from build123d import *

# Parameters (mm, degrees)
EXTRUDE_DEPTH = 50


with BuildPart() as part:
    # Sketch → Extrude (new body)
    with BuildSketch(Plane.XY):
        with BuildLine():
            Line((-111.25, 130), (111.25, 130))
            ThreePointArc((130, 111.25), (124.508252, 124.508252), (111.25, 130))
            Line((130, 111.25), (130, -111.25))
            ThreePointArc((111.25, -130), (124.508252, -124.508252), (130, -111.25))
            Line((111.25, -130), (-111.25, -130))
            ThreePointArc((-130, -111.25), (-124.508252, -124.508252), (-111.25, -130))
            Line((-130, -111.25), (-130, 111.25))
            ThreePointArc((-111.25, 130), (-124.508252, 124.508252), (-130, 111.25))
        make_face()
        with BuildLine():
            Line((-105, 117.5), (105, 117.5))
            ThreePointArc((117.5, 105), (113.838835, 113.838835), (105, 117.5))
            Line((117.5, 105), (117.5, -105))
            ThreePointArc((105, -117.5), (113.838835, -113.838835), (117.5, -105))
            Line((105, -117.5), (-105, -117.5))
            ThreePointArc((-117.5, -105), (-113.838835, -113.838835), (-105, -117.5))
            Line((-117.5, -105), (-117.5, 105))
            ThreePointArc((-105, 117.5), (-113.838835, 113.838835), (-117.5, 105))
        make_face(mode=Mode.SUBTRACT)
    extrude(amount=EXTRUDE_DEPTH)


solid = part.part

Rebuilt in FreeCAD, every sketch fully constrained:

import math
import FreeCAD as App
import Part
import Sketcher

V = App.Vector

doc = App.newDocument("Part")
body = doc.addObject("PartDesign::Body", "Body")

# Sketch on XY plane
sketch1 = body.newObject("Sketcher::SketchObject", "Sketch")
sketch1.AttachmentSupport = (doc.getObject("XY_Plane"), [""])
sketch1.MapMode = "FlatFace"
sketch1.addGeometry([
    Part.LineSegment(V(111, 130, 0), V(-111, 130, 0)),  # 0
    Part.ArcOfCircle(Part.Circle(V(-111, 111, 0), V(0, 0, 1), 19), math.radians(90), math.radians(180)),  # 1
    Part.LineSegment(V(-130, 111, 0), V(-130, -111, 0)),  # 2
    Part.ArcOfCircle(Part.Circle(V(-111, -111, 0), V(0, 0, 1), 19), math.radians(-180), math.radians(-90)),  # 3
    Part.LineSegment(V(-111, -130, 0), V(111, -130, 0)),  # 4
    Part.ArcOfCircle(Part.Circle(V(111, -111, 0), V(0, 0, 1), 19), math.radians(-90), math.radians(0)),  # 5
    Part.LineSegment(V(130, -111, 0), V(130, 111, 0)),  # 6
    Part.ArcOfCircle(Part.Circle(V(111, 111, 0), V(0, 0, 1), 19), math.radians(0), math.radians(90)),  # 7
    Part.LineSegment(V(-105, 118, 0), V(105, 118, 0)),  # 8
    Part.ArcOfCircle(Part.Circle(V(105, 105, 0), V(0, 0, 1), 12), math.radians(0), math.radians(90)),  # 9
    Part.LineSegment(V(118, 105, 0), V(118, -105, 0)),  # 10
    Part.ArcOfCircle(Part.Circle(V(105, -105, 0), V(0, 0, 1), 12), math.radians(-90), math.radians(0)),  # 11
    Part.LineSegment(V(105, -118, 0), V(-105, -118, 0)),  # 12
    Part.ArcOfCircle(Part.Circle(V(-105, -105, 0), V(0, 0, 1), 12), math.radians(180), math.radians(270)),  # 13
    Part.LineSegment(V(-118, -105, 0), V(-118, 105, 0)),  # 14
    Part.ArcOfCircle(Part.Circle(V(-105, 105, 0), V(0, 0, 1), 12), math.radians(90), math.radians(180)),  # 15
], False)
sketch1.addConstraint([
    Sketcher.Constraint("Tangent", 0, 2, 1, 1),
    Sketcher.Constraint("Tangent", 1, 2, 2, 1),
    Sketcher.Constraint("Tangent", 2, 2, 3, 1),
    Sketcher.Constraint("Tangent", 3, 2, 4, 1),
    Sketcher.Constraint("Tangent", 4, 2, 5, 1),
    Sketcher.Constraint("Tangent", 5, 2, 6, 1),
    Sketcher.Constraint("Tangent", 6, 2, 7, 1),
    Sketcher.Constraint("Tangent", 7, 2, 0, 1),
    Sketcher.Constraint("Tangent", 8, 2, 9, 2),
    Sketcher.Constraint("Tangent", 9, 1, 10, 1),
    Sketcher.Constraint("Tangent", 10, 2, 11, 2),
    Sketcher.Constraint("Tangent", 11, 1, 12, 1),
    Sketcher.Constraint("Tangent", 12, 2, 13, 2),
    Sketcher.Constraint("Tangent", 13, 1, 14, 1),
    Sketcher.Constraint("Tangent", 14, 2, 15, 2),
    Sketcher.Constraint("Tangent", 15, 1, 8, 1),
    Sketcher.Constraint("Horizontal", 0),
    Sketcher.Constraint("Vertical", 2),
    Sketcher.Constraint("Horizontal", 4),
    Sketcher.Constraint("Vertical", 6),
    Sketcher.Constraint("Horizontal", 8),
    Sketcher.Constraint("Vertical", 10),
    Sketcher.Constraint("Horizontal", 12),
    Sketcher.Constraint("Vertical", 14),
    Sketcher.Constraint("Equal", 1, 3),
    Sketcher.Constraint("Equal", 3, 5),
    Sketcher.Constraint("Equal", 5, 7),
    Sketcher.Constraint("Equal", 9, 11),
    Sketcher.Constraint("Equal", 11, 13),
    Sketcher.Constraint("Equal", 13, 15),
    Sketcher.Constraint("Symmetric", 1, 3, 5, 3, -1, 1),
    Sketcher.Constraint("Symmetric", 9, 3, 13, 3, -1, 1),
    Sketcher.Constraint("Equal", 4, 2),
    Sketcher.Constraint("Equal", 12, 10),
    Sketcher.Constraint("Radius", 9, 12.499999),
    Sketcher.Constraint("DistanceX", 8, 1, 8, 2, 210.0),
    Sketcher.Constraint("Radius", 1, 18.750001),
    Sketcher.Constraint("DistanceX", 0, 2, 0, 1, 222.5),
])
pad1 = body.newObject("PartDesign::Pad", "Pad")
pad1.Profile = sketch1
pad1.Length = 50

doc.recompute()
